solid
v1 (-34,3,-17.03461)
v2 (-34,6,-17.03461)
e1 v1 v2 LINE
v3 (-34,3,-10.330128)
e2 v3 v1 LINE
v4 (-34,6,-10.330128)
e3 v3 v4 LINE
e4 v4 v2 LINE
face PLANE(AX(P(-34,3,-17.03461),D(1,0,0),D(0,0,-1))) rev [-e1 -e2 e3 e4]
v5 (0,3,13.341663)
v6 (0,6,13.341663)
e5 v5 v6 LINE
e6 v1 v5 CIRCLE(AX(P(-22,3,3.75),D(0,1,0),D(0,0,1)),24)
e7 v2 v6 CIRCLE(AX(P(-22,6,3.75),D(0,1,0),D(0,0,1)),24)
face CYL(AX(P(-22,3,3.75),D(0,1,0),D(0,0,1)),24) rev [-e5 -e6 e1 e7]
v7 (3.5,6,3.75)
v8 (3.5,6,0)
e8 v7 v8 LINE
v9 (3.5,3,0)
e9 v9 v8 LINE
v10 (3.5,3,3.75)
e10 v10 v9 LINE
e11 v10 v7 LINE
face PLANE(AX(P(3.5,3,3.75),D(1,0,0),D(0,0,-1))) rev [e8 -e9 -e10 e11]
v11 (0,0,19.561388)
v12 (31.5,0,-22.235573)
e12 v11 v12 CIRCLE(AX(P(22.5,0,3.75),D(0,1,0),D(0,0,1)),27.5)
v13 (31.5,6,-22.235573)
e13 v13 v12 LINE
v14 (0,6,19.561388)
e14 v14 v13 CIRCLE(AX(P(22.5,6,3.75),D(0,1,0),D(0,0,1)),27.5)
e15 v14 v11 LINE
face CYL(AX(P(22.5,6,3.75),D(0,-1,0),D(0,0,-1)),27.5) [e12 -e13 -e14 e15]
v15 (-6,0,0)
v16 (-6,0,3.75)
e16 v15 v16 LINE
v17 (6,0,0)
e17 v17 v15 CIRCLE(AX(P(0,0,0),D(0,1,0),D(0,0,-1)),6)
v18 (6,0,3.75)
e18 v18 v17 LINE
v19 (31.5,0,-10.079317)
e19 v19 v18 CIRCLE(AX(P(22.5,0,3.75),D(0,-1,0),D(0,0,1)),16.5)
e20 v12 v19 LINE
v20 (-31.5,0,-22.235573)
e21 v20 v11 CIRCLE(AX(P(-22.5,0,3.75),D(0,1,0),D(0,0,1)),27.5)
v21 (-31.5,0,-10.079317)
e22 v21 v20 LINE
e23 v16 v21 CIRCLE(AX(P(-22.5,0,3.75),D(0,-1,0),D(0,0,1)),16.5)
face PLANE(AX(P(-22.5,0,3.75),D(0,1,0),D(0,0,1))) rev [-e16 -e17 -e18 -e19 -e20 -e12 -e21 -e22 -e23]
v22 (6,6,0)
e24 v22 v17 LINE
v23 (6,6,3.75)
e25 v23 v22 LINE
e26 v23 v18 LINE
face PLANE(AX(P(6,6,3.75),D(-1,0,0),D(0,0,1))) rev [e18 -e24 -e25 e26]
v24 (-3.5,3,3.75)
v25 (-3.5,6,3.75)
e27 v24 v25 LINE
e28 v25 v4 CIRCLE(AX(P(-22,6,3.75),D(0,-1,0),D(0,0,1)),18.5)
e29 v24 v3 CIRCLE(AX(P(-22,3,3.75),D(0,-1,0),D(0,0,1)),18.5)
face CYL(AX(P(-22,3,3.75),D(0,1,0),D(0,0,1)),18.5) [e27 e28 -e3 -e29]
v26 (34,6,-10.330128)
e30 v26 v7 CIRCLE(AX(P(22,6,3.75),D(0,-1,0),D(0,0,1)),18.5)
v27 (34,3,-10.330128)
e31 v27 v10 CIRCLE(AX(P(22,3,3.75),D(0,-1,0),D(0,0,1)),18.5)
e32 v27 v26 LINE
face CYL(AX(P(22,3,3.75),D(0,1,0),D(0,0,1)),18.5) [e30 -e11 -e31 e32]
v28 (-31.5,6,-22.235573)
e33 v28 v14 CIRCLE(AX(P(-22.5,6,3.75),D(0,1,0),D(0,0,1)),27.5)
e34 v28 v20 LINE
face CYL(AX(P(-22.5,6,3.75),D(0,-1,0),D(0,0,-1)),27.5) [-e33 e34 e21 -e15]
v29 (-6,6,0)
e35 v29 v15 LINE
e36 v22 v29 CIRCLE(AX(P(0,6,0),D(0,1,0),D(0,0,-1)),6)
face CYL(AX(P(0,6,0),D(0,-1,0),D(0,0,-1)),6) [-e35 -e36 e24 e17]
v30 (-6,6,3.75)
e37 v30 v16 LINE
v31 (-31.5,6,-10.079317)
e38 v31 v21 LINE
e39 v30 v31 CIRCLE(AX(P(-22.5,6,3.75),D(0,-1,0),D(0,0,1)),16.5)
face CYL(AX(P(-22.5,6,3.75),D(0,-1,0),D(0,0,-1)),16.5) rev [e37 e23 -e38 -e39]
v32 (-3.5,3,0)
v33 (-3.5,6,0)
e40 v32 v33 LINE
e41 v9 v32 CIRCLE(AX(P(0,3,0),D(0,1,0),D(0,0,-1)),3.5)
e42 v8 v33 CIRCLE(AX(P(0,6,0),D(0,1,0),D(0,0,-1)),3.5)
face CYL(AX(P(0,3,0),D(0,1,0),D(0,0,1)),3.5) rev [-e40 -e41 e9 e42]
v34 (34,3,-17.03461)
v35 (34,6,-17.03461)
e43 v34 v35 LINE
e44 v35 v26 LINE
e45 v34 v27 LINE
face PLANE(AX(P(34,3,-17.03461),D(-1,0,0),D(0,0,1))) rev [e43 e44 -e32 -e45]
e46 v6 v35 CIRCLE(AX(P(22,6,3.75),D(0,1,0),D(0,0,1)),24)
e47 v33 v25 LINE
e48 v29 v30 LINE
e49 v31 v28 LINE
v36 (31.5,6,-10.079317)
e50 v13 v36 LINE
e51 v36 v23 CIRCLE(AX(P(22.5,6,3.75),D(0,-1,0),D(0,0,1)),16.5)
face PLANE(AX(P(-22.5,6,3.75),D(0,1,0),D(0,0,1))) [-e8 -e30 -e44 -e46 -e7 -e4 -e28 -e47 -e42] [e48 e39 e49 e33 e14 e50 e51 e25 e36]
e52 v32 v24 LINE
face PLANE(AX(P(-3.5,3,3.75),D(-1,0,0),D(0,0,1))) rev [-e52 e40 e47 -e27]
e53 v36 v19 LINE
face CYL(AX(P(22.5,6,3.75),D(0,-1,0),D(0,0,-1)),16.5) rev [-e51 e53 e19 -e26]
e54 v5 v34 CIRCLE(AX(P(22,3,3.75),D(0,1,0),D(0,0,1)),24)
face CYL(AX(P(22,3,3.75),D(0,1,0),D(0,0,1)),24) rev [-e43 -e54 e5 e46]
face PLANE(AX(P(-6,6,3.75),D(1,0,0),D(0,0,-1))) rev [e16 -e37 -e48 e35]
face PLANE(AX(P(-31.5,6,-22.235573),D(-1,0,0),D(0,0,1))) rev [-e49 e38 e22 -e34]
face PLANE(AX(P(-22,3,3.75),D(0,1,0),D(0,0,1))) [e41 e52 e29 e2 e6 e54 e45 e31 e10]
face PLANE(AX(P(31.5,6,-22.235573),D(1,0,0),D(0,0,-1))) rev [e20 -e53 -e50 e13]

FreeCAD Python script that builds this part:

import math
import FreeCAD as App
import Part
import Sketcher
from FreeCAD import Vector
Q = App.Units.Quantity

doc = App.newDocument("Part")
params = doc.addObject("Spreadsheet::Sheet", "Params")
for row, (alias, value) in enumerate([
    ("sketch1_radius", "6 mm"),
    ("sketch1_radius2", "16.5 mm"),
    ("sketch1_radius3", "27.5 mm"),
    ("sketch1_width", "9 mm"),
    ("sketch1_height", "3.75 mm"),
    ("pad1_length", "6 mm"),
    ("sketch2_radius", "24 mm"),
    ("sketch2_radius2", "18.5 mm"),
    ("sketch2_radius3", "3.5 mm"),
    ("sketch2_height", "3.75 mm"),
    ("pocket1_length", "3 mm"),
], start=1):
    params.set(f"A{row}", alias)
    params.set(f"B{row}", "=" + value)
    params.setAlias(f"B{row}", alias)

body = doc.addObject("PartDesign::Body", "Body")

# Sketch on XZ plane
sketch1 = body.newObject("Sketcher::SketchObject", "Sketch")
sketch1.AttachmentSupport = (doc.getObject("XZ_Plane"), [""])
sketch1.MapMode = "FlatFace"
sketch1.addGeometry(Part.LineSegment(Vector(-6, 0, 0), Vector(-6, 3.75, 0)), False)
sketch1.addGeometry(Part.ArcOfCircle(Part.Circle(Vector(-22.5, 3.75, 0), Vector(0, 0, 1), 16.5), math.radians(0), math.radians(236.944269)), False)
sketch1.addGeometry(Part.LineSegment(Vector(-31.5, -10.079317, 0), Vector(-31.5, -22.235573, 0)), False)
sketch1.addGeometry(Part.ArcOfCircle(Part.Circle(Vector(-22.5, 3.75, 0), Vector(0, 0, 1), 27.5), math.radians(35.096801), math.radians(250.896676)), False)
sketch1.addGeometry(Part.ArcOfCircle(Part.Circle(Vector(22.5, 3.75, 0), Vector(0, 0, 1), 27.5), math.radians(-70.896676), math.radians(144.903199)), False)
sketch1.addGeometry(Part.LineSegment(Vector(31.5, -22.235573, 0), Vector(31.5, -10.079317, 0)), False)
sketch1.addGeometry(Part.ArcOfCircle(Part.Circle(Vector(22.5, 3.75, 0), Vector(0, 0, 1), 16.5), math.radians(-56.944269), math.radians(180)), False)
sketch1.addGeometry(Part.LineSegment(Vector(6, 3.75, 0), Vector(6, 0, 0)), False)
sketch1.addGeometry(Part.ArcOfCircle(Part.Circle(Vector(0, 0, 0), Vector(0, 0, 1), 6), math.radians(180), math.radians(360)), False)
sketch1.addConstraint(Sketcher.Constraint("Tangent", 0, 2, 1, 1))
sketch1.addConstraint(Sketcher.Constraint("Coincident", 1, 2, 2, 1))
sketch1.addConstraint(Sketcher.Constraint("Coincident", 2, 2, 3, 2))
sketch1.addConstraint(Sketcher.Constraint("Coincident", 3, 1, 4, 2))
sketch1.addConstraint(Sketcher.Constraint("Coincident", 4, 1, 5, 1))
sketch1.addConstraint(Sketcher.Constraint("Coincident", 5, 2, 6, 1))
sketch1.addConstraint(Sketcher.Constraint("Tangent", 6, 2, 7, 1))
sketch1.addConstraint(Sketcher.Constraint("Tangent", 7, 2, 8, 2))
sketch1.addConstraint(Sketcher.Constraint("Tangent", 8, 1, 0, 1))
sketch1.addConstraint(Sketcher.Constraint("Vertical", 0))
sketch1.addConstraint(Sketcher.Constraint("Vertical", 2))
sketch1.addConstraint(Sketcher.Constraint("Vertical", 5))
sketch1.addConstraint(Sketcher.Constraint("Vertical", 7))
sketch1.addConstraint(Sketcher.Constraint("Coincident", 8, 3, -1, 1))
sketch1.addConstraint(Sketcher.Constraint("Coincident", 3, 3, 1, 3))
sketch1.addConstraint(Sketcher.Constraint("Coincident", 6, 3, 4, 3))
sketch1.addConstraint(Sketcher.Constraint("Equal", 3, 4))
sketch1.addConstraint(Sketcher.Constraint("Equal", 1, 6))
sketch1.addConstraint(Sketcher.Constraint("Symmetric", 2, 2, 4, 1, -2))
sketch1.addConstraint(Sketcher.Constraint("Radius", 8, Q("6 mm")))
sketch1.addConstraint(Sketcher.Constraint("Radius", 1, Q("16.5 mm")))
sketch1.addConstraint(Sketcher.Constraint("Radius", 3, Q("27.5 mm")))
sketch1.addConstraint(Sketcher.Constraint("DistanceX", 1, 2, 1, 3, Q("9 mm")))
sketch1.addConstraint(Sketcher.Constraint("DistanceY", 0, 1, 0, 2, Q("3.75 mm")))
sketch1.setExpression("Constraints[19]", "Params.sketch1_radius")
sketch1.setExpression("Constraints[20]", "Params.sketch1_radius2")
sketch1.setExpression("Constraints[21]", "Params.sketch1_radius3")
sketch1.setExpression("Constraints[22]", "Params.sketch1_width")
sketch1.setExpression("Constraints[23]", "Params.sketch1_height")
pad1 = body.newObject("PartDesign::Pad", "Pad")
pad1.Profile = sketch1
pad1.setExpression("Length", "Params.pad1_length")
pad1.Reversed = True

# Sketch on XZ plane
sketch2 = body.newObject("Sketcher::SketchObject", "Sketch001")
sketch2.AttachmentSupport = (doc.getObject("XZ_Plane"), [""])
sketch2.MapMode = "FlatFace"
sketch2.AttachmentOffset = App.Placement(Vector(0, 0, -6), App.Rotation())
sketch2.addGeometry(Part.LineSegment(Vector(-3.5, 0, 0), Vector(-3.5, 3.75, 0)), False)
sketch2.addGeometry(Part.ArcOfCircle(Part.Circle(Vector(-22, 3.75, 0), Vector(0, 0, 1), 18.5), math.radians(0), math.radians(229.560207)), False)
sketch2.addGeometry(Part.LineSegment(Vector(-34, -10.330128, 0), Vector(-34, -17.03461, 0)), False)
sketch2.addGeometry(Part.ArcOfCircle(Part.Circle(Vector(-22, 3.75, 0), Vector(0, 0, 1), 24), math.radians(23.556464), math.radians(240)), False)
sketch2.addGeometry(Part.ArcOfCircle(Part.Circle(Vector(22, 3.75, 0), Vector(0, 0, 1), 24), math.radians(-60), math.radians(156.443536)), False)
sketch2.addGeometry(Part.LineSegment(Vector(34, -17.03461, 0), Vector(34, -10.330128, 0)), False)
sketch2.addGeometry(Part.ArcOfCircle(Part.Circle(Vector(22, 3.75, 0), Vector(0, 0, 1), 18.5), math.radians(-49.560207), math.radians(180)), False)
sketch2.addGeometry(Part.LineSegment(Vector(3.5, 3.75, 0), Vector(3.5, 0, 0)), False)
sketch2.addGeometry(Part.ArcOfCircle(Part.Circle(Vector(0, 0, 0), Vector(0, 0, 1), 3.5), math.radians(180), math.radians(360)), False)
sketch2.addConstraint(Sketcher.Constraint("Tangent", 0, 2, 1, 1))
sketch2.addConstraint(Sketcher.Constraint("Coincident", 1, 2, 2, 1))
sketch2.addConstraint(Sketcher.Constraint("Coincident", 2, 2, 3, 2))
sketch2.addConstraint(Sketcher.Constraint("Coincident", 3, 1, 4, 2))
sketch2.addConstraint(Sketcher.Constraint("Coincident", 4, 1, 5, 1))
sketch2.addConstraint(Sketcher.Constraint("Coincident", 5, 2, 6, 1))
sketch2.addConstraint(Sketcher.Constraint("Tangent", 6, 2, 7, 1))
sketch2.addConstraint(Sketcher.Constraint("Tangent", 7, 2, 8, 2))
sketch2.addConstraint(Sketcher.Constraint("Tangent", 8, 1, 0, 1))
sketch2.addConstraint(Sketcher.Constraint("Vertical", 0))
sketch2.addConstraint(Sketcher.Constraint("Vertical", 2))
sketch2.addConstraint(Sketcher.Constraint("Vertical", 5))
sketch2.addConstraint(Sketcher.Constraint("Vertical", 7))
sketch2.addConstraint(Sketcher.Constraint("Coincident", 8, 3, -1, 1))
sketch2.addConstraint(Sketcher.Constraint("Coincident", 3, 3, 1, 3))
sketch2.addConstraint(Sketcher.Constraint("Coincident", 6, 3, 4, 3))
sketch2.addConstraint(Sketcher.Constraint("Equal", 3, 4))
sketch2.addConstraint(Sketcher.Constraint("Equal", 1, 6))
sketch2.addConstraint(Sketcher.Constraint("Symmetric", 2, 2, 4, 1, -2))
sketch2.addConstraint(Sketcher.Constraint("Radius", 3, Q("24 mm")))
sketch2.addConstraint(Sketcher.Constraint("Radius", 1, Q("18.5 mm")))
sketch2.addConstraint(Sketcher.Constraint("Radius", 8, Q("3.5 mm")))
sketch2.addConstraint(Sketcher.Constraint("DistanceX", 1, 2, -1, 1, Q("34 mm")))
sketch2.addConstraint(Sketcher.Constraint("DistanceY", 0, 1, 0, 2, Q("3.75 mm")))
sketch2.setExpression("Constraints[19]", "Params.sketch2_radius")
sketch2.setExpression("Constraints[20]", "Params.sketch2_radius2")
sketch2.setExpression("Constraints[21]", "Params.sketch2_radius3")
sketch2.setExpression("Constraints[23]", "Params.sketch2_height")
pocket1 = body.newObject("PartDesign::Pocket", "Pocket")
pocket1.Profile = sketch2
pocket1.setExpression("Length", "Params.pocket1_length")
pocket1.Reversed = True

doc.recompute()
